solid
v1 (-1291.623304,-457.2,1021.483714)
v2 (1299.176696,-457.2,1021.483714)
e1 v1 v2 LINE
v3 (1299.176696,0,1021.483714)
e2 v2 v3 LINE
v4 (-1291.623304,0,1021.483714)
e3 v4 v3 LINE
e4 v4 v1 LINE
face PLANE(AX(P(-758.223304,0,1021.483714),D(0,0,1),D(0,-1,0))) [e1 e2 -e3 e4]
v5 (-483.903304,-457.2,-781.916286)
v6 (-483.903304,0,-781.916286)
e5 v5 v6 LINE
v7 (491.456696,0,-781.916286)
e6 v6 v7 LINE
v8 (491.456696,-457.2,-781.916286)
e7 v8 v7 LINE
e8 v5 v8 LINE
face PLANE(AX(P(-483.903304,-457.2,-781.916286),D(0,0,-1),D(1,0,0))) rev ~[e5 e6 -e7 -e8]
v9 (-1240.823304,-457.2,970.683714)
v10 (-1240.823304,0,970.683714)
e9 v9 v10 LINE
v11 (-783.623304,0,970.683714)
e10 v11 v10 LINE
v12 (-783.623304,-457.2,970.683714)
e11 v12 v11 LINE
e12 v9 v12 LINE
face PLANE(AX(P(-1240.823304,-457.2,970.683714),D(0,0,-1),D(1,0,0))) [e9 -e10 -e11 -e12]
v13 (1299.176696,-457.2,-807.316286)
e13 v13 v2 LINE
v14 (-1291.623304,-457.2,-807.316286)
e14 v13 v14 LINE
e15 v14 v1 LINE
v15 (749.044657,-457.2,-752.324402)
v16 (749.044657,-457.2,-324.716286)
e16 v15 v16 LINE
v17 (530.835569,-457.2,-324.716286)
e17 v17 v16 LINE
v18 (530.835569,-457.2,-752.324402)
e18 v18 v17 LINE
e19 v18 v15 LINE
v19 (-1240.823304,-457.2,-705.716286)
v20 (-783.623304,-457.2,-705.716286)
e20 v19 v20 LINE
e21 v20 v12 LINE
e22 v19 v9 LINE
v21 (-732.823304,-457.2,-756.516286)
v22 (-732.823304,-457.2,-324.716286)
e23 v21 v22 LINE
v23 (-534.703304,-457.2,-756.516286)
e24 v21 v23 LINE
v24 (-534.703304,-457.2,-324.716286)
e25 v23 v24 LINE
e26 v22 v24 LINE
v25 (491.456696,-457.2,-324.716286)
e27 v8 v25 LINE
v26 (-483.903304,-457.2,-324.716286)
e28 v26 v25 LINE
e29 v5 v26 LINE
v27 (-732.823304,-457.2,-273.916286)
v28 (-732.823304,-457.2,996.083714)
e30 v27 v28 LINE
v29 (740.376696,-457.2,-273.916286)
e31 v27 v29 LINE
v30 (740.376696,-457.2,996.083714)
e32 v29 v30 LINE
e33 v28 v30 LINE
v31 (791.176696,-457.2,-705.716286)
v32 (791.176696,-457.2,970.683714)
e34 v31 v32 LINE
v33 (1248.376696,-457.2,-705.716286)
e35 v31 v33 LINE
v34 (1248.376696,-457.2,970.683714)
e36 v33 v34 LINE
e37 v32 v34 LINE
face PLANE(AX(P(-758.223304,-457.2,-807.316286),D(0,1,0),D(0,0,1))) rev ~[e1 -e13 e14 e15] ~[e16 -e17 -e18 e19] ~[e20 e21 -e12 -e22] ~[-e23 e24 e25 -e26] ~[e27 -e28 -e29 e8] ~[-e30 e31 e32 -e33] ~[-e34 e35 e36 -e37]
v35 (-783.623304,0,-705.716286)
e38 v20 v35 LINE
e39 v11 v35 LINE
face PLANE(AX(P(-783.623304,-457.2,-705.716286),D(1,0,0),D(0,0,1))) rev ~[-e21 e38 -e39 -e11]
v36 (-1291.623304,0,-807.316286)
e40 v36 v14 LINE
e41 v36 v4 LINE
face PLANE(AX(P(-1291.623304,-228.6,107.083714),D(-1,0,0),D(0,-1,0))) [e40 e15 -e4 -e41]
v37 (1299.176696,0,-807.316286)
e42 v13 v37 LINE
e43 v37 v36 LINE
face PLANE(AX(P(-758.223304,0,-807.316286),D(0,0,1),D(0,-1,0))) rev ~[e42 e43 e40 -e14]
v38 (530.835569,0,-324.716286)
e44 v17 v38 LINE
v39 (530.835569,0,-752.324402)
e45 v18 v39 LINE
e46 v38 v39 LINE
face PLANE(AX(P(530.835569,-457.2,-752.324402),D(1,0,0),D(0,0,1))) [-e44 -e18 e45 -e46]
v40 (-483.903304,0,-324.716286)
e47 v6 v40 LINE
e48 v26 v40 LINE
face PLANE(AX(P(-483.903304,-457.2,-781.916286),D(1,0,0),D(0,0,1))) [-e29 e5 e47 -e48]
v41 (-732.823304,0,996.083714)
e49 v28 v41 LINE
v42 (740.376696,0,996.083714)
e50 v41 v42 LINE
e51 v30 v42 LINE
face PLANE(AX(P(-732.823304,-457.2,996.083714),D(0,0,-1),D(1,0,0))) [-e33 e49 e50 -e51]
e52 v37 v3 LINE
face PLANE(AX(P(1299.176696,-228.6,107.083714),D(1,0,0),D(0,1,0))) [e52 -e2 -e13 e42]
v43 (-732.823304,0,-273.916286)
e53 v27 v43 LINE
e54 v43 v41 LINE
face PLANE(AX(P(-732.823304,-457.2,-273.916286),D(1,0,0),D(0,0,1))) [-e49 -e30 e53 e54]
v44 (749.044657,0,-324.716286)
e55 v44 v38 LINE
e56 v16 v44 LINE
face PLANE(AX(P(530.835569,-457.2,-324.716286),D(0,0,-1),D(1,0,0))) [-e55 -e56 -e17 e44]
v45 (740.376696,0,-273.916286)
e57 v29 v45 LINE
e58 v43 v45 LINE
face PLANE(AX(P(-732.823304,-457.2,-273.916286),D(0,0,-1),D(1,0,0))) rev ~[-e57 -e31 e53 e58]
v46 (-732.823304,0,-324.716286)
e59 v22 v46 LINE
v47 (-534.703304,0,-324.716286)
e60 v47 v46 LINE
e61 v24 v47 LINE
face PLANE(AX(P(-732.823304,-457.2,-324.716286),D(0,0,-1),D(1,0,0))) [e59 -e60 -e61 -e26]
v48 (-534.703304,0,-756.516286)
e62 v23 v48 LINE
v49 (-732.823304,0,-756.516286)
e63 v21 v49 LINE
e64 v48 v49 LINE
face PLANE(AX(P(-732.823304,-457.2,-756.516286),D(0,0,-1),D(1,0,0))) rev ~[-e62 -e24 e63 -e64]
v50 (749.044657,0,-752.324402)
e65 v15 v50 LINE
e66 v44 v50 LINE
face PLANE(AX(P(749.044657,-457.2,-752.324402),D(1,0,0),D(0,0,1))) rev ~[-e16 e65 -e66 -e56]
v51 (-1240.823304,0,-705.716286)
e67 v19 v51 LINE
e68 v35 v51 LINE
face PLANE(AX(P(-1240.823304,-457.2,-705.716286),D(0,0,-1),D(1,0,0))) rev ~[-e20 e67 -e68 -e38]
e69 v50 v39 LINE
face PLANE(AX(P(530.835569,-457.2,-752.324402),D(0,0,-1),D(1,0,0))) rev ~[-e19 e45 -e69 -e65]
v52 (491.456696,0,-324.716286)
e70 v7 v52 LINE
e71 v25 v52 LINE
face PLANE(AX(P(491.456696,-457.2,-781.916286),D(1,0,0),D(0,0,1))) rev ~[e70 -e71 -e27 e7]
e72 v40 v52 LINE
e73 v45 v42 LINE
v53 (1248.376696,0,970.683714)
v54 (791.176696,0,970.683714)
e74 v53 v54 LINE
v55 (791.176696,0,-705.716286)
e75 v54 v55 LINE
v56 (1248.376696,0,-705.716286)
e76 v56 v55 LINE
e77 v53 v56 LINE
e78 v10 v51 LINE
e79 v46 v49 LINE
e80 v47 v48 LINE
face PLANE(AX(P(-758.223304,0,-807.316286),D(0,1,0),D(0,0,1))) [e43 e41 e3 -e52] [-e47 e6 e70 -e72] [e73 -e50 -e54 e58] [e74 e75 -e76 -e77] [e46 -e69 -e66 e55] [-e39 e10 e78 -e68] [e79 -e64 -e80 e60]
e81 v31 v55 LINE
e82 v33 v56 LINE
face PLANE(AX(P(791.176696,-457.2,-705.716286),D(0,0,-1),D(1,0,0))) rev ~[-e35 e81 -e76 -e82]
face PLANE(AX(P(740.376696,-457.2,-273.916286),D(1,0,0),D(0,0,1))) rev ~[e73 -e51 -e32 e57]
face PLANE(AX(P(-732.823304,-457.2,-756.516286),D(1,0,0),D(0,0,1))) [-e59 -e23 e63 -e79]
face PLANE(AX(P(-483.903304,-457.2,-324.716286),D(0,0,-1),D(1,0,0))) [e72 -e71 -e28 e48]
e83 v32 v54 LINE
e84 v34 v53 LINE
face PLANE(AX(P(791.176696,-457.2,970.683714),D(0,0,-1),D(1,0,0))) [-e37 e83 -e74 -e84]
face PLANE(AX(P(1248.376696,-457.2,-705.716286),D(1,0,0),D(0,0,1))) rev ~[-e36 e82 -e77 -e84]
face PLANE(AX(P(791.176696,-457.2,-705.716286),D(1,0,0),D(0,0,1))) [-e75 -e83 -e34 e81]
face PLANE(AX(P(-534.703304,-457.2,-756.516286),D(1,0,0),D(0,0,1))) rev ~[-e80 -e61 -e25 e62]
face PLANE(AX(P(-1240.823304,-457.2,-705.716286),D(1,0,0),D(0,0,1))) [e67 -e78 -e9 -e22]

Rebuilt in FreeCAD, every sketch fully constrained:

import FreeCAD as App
import Part
import Sketcher
from FreeCAD import Vector
Q = App.Units.Quantity


def add_polygon(sketch, points):
    """Adds a closed chain of lines whose ends are joined by coincident constraints."""
    first, n = sketch.GeometryCount, len(points)
    for a, b in zip(points, points[1:] + points[:1]):
        sketch.addGeometry(Part.LineSegment(App.Vector(*a, 0), App.Vector(*b, 0)), False)
    for i in range(n):
        sketch.addConstraint(Sketcher.Constraint("Coincident", first + i, 2, first + (i + 1) % n, 1))

doc = App.newDocument("Part")
params = doc.addObject("Spreadsheet::Sheet", "Params")
for row, (alias, value) in enumerate([
    ("sketch1_width", "60 in"),
    ("sketch1_height", "72 in"),
    ("pad1_length", "18 in"),
    ("sketch2_width", "58 in"),
    ("sketch2_height", "50 in"),
    ("sketch3_height", "18 in"),
    ("sketch3_width", "38.4 in"),
    ("sketch4_width", "18 in"),
    ("sketch4_height", "72 in"),
    ("pad2_length", "21 in"),
    ("sketch5_width", "18 in"),
    ("sketch5_height", "72 in"),
    ("pad3_length", "21 in"),
    ("sketch6_width", "18 in"),
    ("sketch6_height", "66 in"),
    ("sketch7_width", "18 in"),
    ("sketch7_height", "66 in"),
    ("sketch8_height", "17 in"),
    ("sketch8_width", "7.8 in"),
], start=1):
    params.set(f"A{row}", alias)
    params.set(f"B{row}", "=" + value)
    params.setAlias(f"B{row}", alias)

body = doc.addObject("PartDesign::Body", "Body")

# Sketch on XZ plane
sketch1 = body.newObject("Sketcher::SketchObject", "Sketch")
sketch1.AttachmentSupport = (doc.getObject("XZ_Plane"), [""])
sketch1.MapMode = "FlatFace"
add_polygon(sketch1, [(-758.223304, 1021.483714), (-758.223304, -807.316286), (765.776696, -807.316286), (765.776696, 1021.483714)])  # lines 0-3
sketch1.addConstraint([
    Sketcher.Constraint("Vertical", 0),
    Sketcher.Constraint("Horizontal", 1),
    Sketcher.Constraint("Vertical", 2),
    Sketcher.Constraint("Horizontal", 3),
    Sketcher.Constraint("DistanceX", 1, 1, 1, 2, Q("60 in")),
    Sketcher.Constraint("DistanceY", 0, 2, 0, 1, Q("72 in")),
    Sketcher.Constraint("DistanceX", 0, 2, -1, 1, Q("758.223304 mm")),
    Sketcher.Constraint("DistanceY", 0, 2, -1, 1, Q("807.316286 mm")),
])
sketch1.setExpression("Constraints[8]", "Params.sketch1_width")
sketch1.setExpression("Constraints[9]", "Params.sketch1_height")
pad1 = body.newObject("PartDesign::Pad", "Pad")
pad1.Profile = sketch1
pad1.setExpression("Length", "Params.pad1_length")

# Sketch on XZ plane
sketch2 = body.newObject("Sketcher::SketchObject", "Sketch001")
sketch2.AttachmentSupport = (doc.getObject("XZ_Plane"), [""])
sketch2.MapMode = "FlatFace"
sketch2.AttachmentOffset = App.Placement(Vector(0, 0, 18 * 25.4), App.Rotation())
add_polygon(sketch2, [(-732.823304, 996.083714), (-732.823304, -273.916286), (740.376696, -273.916286), (740.376696, 996.083714)])  # lines 0-3
sketch2.addConstraint([
    Sketcher.Constraint("Vertical", 0),
    Sketcher.Constraint("Horizontal", 1),
    Sketcher.Constraint("Vertical", 2),
    Sketcher.Constraint("Horizontal", 3),
    Sketcher.Constraint("DistanceX", 1, 1, 1, 2, Q("58 in")),
    Sketcher.Constraint("DistanceY", 0, 2, 0, 1, Q("50 in")),
    Sketcher.Constraint("DistanceX", 0, 2, -1, 1, Q("732.823304 mm")),
    Sketcher.Constraint("DistanceY", 0, 2, -1, 1, Q("273.916286 mm")),
])
sketch2.setExpression("Constraints[8]", "Params.sketch2_width")
sketch2.setExpression("Constraints[9]", "Params.sketch2_height")
pocket1 = body.newObject("PartDesign::Pocket", "Pocket")
pocket1.Profile = sketch2
pocket1.Type = "ThroughAll"

# Sketch on XZ plane
sketch3 = body.newObject("Sketcher::SketchObject", "Sketch002")
sketch3.AttachmentSupport = (doc.getObject("XZ_Plane"), [""])
sketch3.MapMode = "FlatFace"
sketch3.AttachmentOffset = App.Placement(Vector(0, 0, 18 * 25.4), App.Rotation())
add_polygon(sketch3, [(-483.903304, -324.716286), (-483.903304, -781.916286), (491.456696, -781.916286), (491.456696, -324.716286)])  # lines 0-3
sketch3.addConstraint([
    Sketcher.Constraint("Vertical", 0),
    Sketcher.Constraint("Horizontal", 1),
    Sketcher.Constraint("Vertical", 2),
    Sketcher.Constraint("Horizontal", 3),
    Sketcher.Constraint("DistanceY", 0, 2, 0, 1, Q("18 in")),
    Sketcher.Constraint("DistanceX", 1, 1, 1, 2, Q("38.4 in")),
    Sketcher.Constraint("DistanceX", 0, 2, -1, 1, Q("483.903304 mm")),
    Sketcher.Constraint("DistanceY", 0, 2, -1, 1, Q("781.916286 mm")),
])
sketch3.setExpression("Constraints[8]", "Params.sketch3_height")
sketch3.setExpression("Constraints[9]", "Params.sketch3_width")
pocket2 = body.newObject("PartDesign::Pocket", "Pocket001")
pocket2.Profile = sketch3
pocket2.Type = "ThroughAll"

# Sketch on YZ plane
sketch4 = body.newObject("Sketcher::SketchObject", "Sketch003")
sketch4.AttachmentSupport = (doc.getObject("YZ_Plane"), [""])
sketch4.MapMode = "FlatFace"
sketch4.AttachmentOffset = App.Placement(Vector(0, 0, 765.776696), App.Rotation())
add_polygon(sketch4, [(-457.2, 1021.483714), (-457.2, -807.316286), (0, -807.316286), (0, 1021.483714)])  # lines 0-3
sketch4.addConstraint([
    Sketcher.Constraint("Vertical", 0),
    Sketcher.Constraint("Horizontal", 1),
    Sketcher.Constraint("Vertical", 2),
    Sketcher.Constraint("Horizontal", 3),
    Sketcher.Constraint("PointOnObject", 1, 2, -2),
    Sketcher.Constraint("DistanceX", 1, 1, 1, 2, Q("18 in")),
    Sketcher.Constraint("DistanceY", 0, 2, 0, 1, Q("72 in")),
    Sketcher.Constraint("DistanceY", 0, 2, -1, 1, Q("807.316286 mm")),
])
sketch4.setExpression("Constraints[9]", "Params.sketch4_width")
sketch4.setExpression("Constraints[10]", "Params.sketch4_height")
pad2 = body.newObject("PartDesign::Pad", "Pad001")
pad2.Profile = sketch4
pad2.setExpression("Length", "Params.pad2_length")

# Sketch on YZ plane
sketch5 = body.newObject("Sketcher::SketchObject", "Sketch004")
sketch5.AttachmentSupport = (doc.getObject("YZ_Plane"), [""])
sketch5.MapMode = "FlatFace"
sketch5.AttachmentOffset = App.Placement(Vector(0, 0, -758.223304), App.Rotation())
add_polygon(sketch5, [(0, 1021.483714), (0, -807.316286), (-457.2, -807.316286), (-457.2, 1021.483714)])  # lines 0-3
sketch5.addConstraint([
    Sketcher.Constraint("Vertical", 0),
    Sketcher.Constraint("Horizontal", 1),
    Sketcher.Constraint("Vertical", 2),
    Sketcher.Constraint("Horizontal", 3),
    Sketcher.Constraint("PointOnObject", 0, 2, -2),
    Sketcher.Constraint("DistanceX", 1, 2, 1, 1, Q("18 in")),
    Sketcher.Constraint("DistanceY", 0, 2, 0, 1, Q("72 in")),
    Sketcher.Constraint("DistanceY", 0, 2, -1, 1, Q("807.316286 mm")),
])
sketch5.setExpression("Constraints[9]", "Params.sketch5_width")
sketch5.setExpression("Constraints[10]", "Params.sketch5_height")
pad3 = body.newObject("PartDesign::Pad", "Pad002")
pad3.Profile = sketch5
pad3.setExpression("Length", "Params.pad3_length")
pad3.Reversed = True

# Sketch on XZ plane
sketch6 = body.newObject("Sketcher::SketchObject", "Sketch005")
sketch6.AttachmentSupport = (doc.getObject("XZ_Plane"), [""])
sketch6.MapMode = "FlatFace"
sketch6.AttachmentOffset = App.Placement(Vector(0, 0, 18 * 25.4), App.Rotation())
add_polygon(sketch6, [(-1240.823304, 970.683714), (-1240.823304, -705.716286), (-783.623304, -705.716286), (-783.623304, 970.683714)])  # lines 0-3
sketch6.addConstraint([
    Sketcher.Constraint("Vertical", 0),
    Sketcher.Constraint("Horizontal", 1),
    Sketcher.Constraint("Vertical", 2),
    Sketcher.Constraint("Horizontal", 3),
    Sketcher.Constraint("DistanceX", 1, 1, 1, 2, Q("18 in")),
    Sketcher.Constraint("DistanceY", 0, 2, 0, 1, Q("66 in")),
    Sketcher.Constraint("DistanceX", 0, 2, -1, 1, Q("1240.823304 mm")),
    Sketcher.Constraint("DistanceY", 0, 2, -1, 1, Q("705.716286 mm")),
])
sketch6.setExpression("Constraints[8]", "Params.sketch6_width")
sketch6.setExpression("Constraints[9]", "Params.sketch6_height")
pocket3 = body.newObject("PartDesign::Pocket", "Pocket002")
pocket3.Profile = sketch6
pocket3.Type = "ThroughAll"

# Sketch on XZ plane
sketch7 = body.newObject("Sketcher::SketchObject", "Sketch006")
sketch7.AttachmentSupport = (doc.getObject("XZ_Plane"), [""])
sketch7.MapMode = "FlatFace"
sketch7.AttachmentOffset = App.Placement(Vector(0, 0, 18 * 25.4), App.Rotation())
add_polygon(sketch7, [(791.176696, 970.683714), (791.176696, -705.716286), (1248.376696, -705.716286), (1248.376696, 970.683714)])  # lines 0-3
sketch7.addConstraint([
    Sketcher.Constraint("Vertical", 0),
    Sketcher.Constraint("Horizontal", 1),
    Sketcher.Constraint("Vertical", 2),
    Sketcher.Constraint("Horizontal", 3),
    Sketcher.Constraint("DistanceX", 1, 1, 1, 2, Q("18 in")),
    Sketcher.Constraint("DistanceY", 0, 2, 0, 1, Q("66 in")),
    Sketcher.Constraint("DistanceX", -1, 1, 0, 2, Q("791.176696 mm")),
    Sketcher.Constraint("DistanceY", 0, 2, -1, 1, Q("705.716286 mm")),
])
sketch7.setExpression("Constraints[8]", "Params.sketch7_width")
sketch7.setExpression("Constraints[9]", "Params.sketch7_height")
pocket4 = body.newObject("PartDesign::Pocket", "Pocket003")
pocket4.Profile = sketch7
pocket4.Type = "ThroughAll"

# Sketch on XZ plane
sketch8 = body.newObject("Sketcher::SketchObject", "Sketch007")
sketch8.AttachmentSupport = (doc.getObject("XZ_Plane"), [""])
sketch8.MapMode = "FlatFace"
sketch8.AttachmentOffset = App.Placement(Vector(0, 0, 18 * 25.4), App.Rotation())
add_polygon(sketch8, [(-732.823304, -324.716286), (-732.823304, -756.516286), (-534.703304, -756.516286), (-534.703304, -324.716286)])  # lines 0-3
sketch8.addConstraint([
    Sketcher.Constraint("Vertical", 0),
    Sketcher.Constraint("Horizontal", 1),
    Sketcher.Constraint("Vertical", 2),
    Sketcher.Constraint("Horizontal", 3),
    Sketcher.Constraint("DistanceY", 0, 2, 0, 1, Q("17 in")),
    Sketcher.Constraint("DistanceX", 1, 1, 1, 2, Q("7.8 in")),
    Sketcher.Constraint("DistanceX", 0, 2, -1, 1, Q("732.823304 mm")),
    Sketcher.Constraint("DistanceY", 0, 2, -1, 1, Q("756.516286 mm")),
])
sketch8.setExpression("Constraints[8]", "Params.sketch8_height")
sketch8.setExpression("Constraints[9]", "Params.sketch8_width")
pocket5 = body.newObject("PartDesign::Pocket", "Pocket004")
pocket5.Profile = sketch8
pocket5.Type = "ThroughAll"

# Sketch on XZ plane
sketch9 = body.newObject("Sketcher::SketchObject", "Sketch008")
sketch9.AttachmentSupport = (doc.getObject("XZ_Plane"), [""])
sketch9.MapMode = "FlatFace"
sketch9.AttachmentOffset = App.Placement(Vector(0, 0, 18 * 25.4), App.Rotation())
add_polygon(sketch9, [(530.835569, -324.716286), (530.835569, -752.324402), (749.044657, -752.324402), (749.044657, -324.716286)])  # lines 0-3
sketch9.addConstraint([
    Sketcher.Constraint("Vertical", 0),
    Sketcher.Constraint("Horizontal", 1),
    Sketcher.Constraint("Vertical", 2),
    Sketcher.Constraint("Horizontal", 3),
    Sketcher.Constraint("DistanceX", 1, 1, 1, 2, Q("218.209088 mm")),
    Sketcher.Constraint("DistanceY", 0, 2, -1, 1, Q("752.324402 mm")),
    Sketcher.Constraint("DistanceY", 0, 2, 0, 1, Q("427.608116 mm")),
    Sketcher.Constraint("DistanceX", -1, 1, 0, 2, Q("530.835569 mm")),
])
pocket6 = body.newObject("PartDesign::Pocket", "Pocket005")
pocket6.Profile = sketch9
pocket6.Type = "ThroughAll"

doc.recompute()
